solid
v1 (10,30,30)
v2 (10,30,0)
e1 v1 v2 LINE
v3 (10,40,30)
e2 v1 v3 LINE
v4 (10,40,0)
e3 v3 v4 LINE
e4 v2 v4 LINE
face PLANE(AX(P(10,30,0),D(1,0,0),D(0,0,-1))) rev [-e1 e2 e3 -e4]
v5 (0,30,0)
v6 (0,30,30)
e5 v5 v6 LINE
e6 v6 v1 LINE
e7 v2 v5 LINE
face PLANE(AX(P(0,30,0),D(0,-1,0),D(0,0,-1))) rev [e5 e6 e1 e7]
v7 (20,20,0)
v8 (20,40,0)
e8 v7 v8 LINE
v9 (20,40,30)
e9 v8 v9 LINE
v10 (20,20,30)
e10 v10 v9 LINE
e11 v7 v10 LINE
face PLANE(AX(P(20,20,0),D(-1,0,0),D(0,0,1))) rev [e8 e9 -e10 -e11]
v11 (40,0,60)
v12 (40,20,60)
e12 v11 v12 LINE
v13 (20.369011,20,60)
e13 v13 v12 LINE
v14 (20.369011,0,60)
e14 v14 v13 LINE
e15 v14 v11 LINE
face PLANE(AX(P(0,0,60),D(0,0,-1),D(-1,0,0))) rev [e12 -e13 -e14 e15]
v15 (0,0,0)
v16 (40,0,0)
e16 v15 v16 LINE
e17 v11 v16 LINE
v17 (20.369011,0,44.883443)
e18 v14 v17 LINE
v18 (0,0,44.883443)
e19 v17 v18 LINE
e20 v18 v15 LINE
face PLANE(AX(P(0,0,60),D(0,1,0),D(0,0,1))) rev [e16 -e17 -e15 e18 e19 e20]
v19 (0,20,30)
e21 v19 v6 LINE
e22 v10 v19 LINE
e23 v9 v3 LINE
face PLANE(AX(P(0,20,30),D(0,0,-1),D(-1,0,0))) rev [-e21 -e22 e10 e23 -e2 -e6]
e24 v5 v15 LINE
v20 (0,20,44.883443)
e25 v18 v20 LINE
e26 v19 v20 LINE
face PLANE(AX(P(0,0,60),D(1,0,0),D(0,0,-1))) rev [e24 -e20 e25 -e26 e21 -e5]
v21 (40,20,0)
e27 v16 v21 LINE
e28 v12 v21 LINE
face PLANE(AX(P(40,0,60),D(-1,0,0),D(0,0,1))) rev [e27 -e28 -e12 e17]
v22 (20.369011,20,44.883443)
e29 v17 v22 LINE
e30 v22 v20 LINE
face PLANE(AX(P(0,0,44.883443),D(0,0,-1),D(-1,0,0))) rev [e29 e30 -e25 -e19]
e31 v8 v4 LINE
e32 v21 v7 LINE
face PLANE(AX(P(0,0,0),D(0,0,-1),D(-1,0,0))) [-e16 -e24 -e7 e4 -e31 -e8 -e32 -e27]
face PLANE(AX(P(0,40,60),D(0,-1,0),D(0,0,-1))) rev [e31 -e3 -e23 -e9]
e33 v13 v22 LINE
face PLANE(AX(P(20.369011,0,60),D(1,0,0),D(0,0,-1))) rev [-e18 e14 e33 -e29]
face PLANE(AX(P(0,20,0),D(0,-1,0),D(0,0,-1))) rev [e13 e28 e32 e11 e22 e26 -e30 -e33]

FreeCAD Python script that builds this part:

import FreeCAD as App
import Part
import Sketcher
from FreeCAD import Vector

doc = App.newDocument("Part")
body = doc.addObject("PartDesign::Body", "Body")

# Sketch on XY plane
sketch1 = doc.addObject("Sketcher::SketchObject", "Sketch")
body.addObject(sketch1)
sketch1.AttachmentSupport = (doc.XY_Plane, [""])
sketch1.MapMode = "FlatFace"
sketch1.addGeometry([
    Part.LineSegment(Vector(0, 40, 0), Vector(0, 0, 0)),
    Part.LineSegment(Vector(0, 0, 0), Vector(40, 0, 0)),
    Part.LineSegment(Vector(40, 0, 0), Vector(40, 40, 0)),
    Part.LineSegment(Vector(40, 40, 0), Vector(0, 40, 0)),
], False)
sketch1.addConstraint([
    Sketcher.Constraint("Coincident", 0, 2, 1, 1),
    Sketcher.Constraint("Coincident", 1, 2, 2, 1),
    Sketcher.Constraint("Coincident", 2, 2, 3, 1),
    Sketcher.Constraint("Coincident", 3, 2, 0, 1),
    Sketcher.Constraint("Vertical", 0),
    Sketcher.Constraint("Horizontal", 1),
    Sketcher.Constraint("Vertical", 2),
    Sketcher.Constraint("Horizontal", 3),
    Sketcher.Constraint("Coincident", 0, 2, -1, 1),
    Sketcher.Constraint("Equal", 3, 0),
    Sketcher.Constraint("DistanceX", 1, 1, 1, 2, 40.0),
])
pad1 = doc.addObject("PartDesign::Pad", "Pad")
body.addObject(pad1)
pad1.Profile = sketch1
pad1.Length = 60

# Sketch on XZ plane
sketch2 = doc.addObject("Sketcher::SketchObject", "Sketch001")
body.addObject(sketch2)
sketch2.AttachmentSupport = (doc.XZ_Plane, [""])
sketch2.MapMode = "FlatFace"
sketch2.AttachmentOffset = App.Placement(Vector(0, 0, -40), App.Rotation())
sketch2.addGeometry([
    Part.LineSegment(Vector(20, 0, 0), Vector(20, 60, 0)),
    Part.LineSegment(Vector(20, 60, 0), Vector(40, 60, 0)),
    Part.LineSegment(Vector(40, 60, 0), Vector(40, 0, 0)),
    Part.LineSegment(Vector(40, 0, 0), Vector(20, 0, 0)),
], False)
sketch2.addConstraint([
    Sketcher.Constraint("Coincident", 0, 2, 1, 1),
    Sketcher.Constraint("Coincident", 1, 2, 2, 1),
    Sketcher.Constraint("Coincident", 2, 2, 3, 1),
    Sketcher.Constraint("Coincident", 3, 2, 0, 1),
    Sketcher.Constraint("Vertical", 0),
    Sketcher.Constraint("Horizontal", 1),
    Sketcher.Constraint("Vertical", 2),
    Sketcher.Constraint("Horizontal", 3),
    Sketcher.Constraint("PointOnObject", 2, 2, -1),
    Sketcher.Constraint("DistanceX", 1, 1, 1, 2, 20.0),
    Sketcher.Constraint("DistanceY", 0, 1, 0, 2, 60.0),
    Sketcher.Constraint("DistanceX", -1, 1, 0, 2, 20.0),
])
pocket1 = doc.addObject("PartDesign::Pocket", "Pocket")
body.addObject(pocket1)
pocket1.Profile = sketch2
pocket1.Length = 20
pocket1.Reversed = True

# Sketch on XZ plane
sketch3 = doc.addObject("Sketcher::SketchObject", "Sketch002")
body.addObject(sketch3)
sketch3.AttachmentSupport = (doc.XZ_Plane, [""])
sketch3.MapMode = "FlatFace"
sketch3.AttachmentOffset = App.Placement(Vector(0, 0, -40), App.Rotation())
sketch3.addGeometry([
    Part.LineSegment(Vector(0, 0, 0), Vector(0, 30, 0)),
    Part.LineSegment(Vector(0, 30, 0), Vector(10, 30, 0)),
    Part.LineSegment(Vector(10, 30, 0), Vector(10, 0, 0)),
    Part.LineSegment(Vector(10, 0, 0), Vector(0, 0, 0)),
], False)
sketch3.addConstraint([
    Sketcher.Constraint("Coincident", 0, 2, 1, 1),
    Sketcher.Constraint("Coincident", 1, 2, 2, 1),
    Sketcher.Constraint("Coincident", 2, 2, 3, 1),
    Sketcher.Constraint("Coincident", 3, 2, 0, 1),
    Sketcher.Constraint("Vertical", 0),
    Sketcher.Constraint("Horizontal", 1),
    Sketcher.Constraint("Vertical", 2),
    Sketcher.Constraint("Horizontal", 3),
    Sketcher.Constraint("Coincident", 3, 2, -1, 1),
    Sketcher.Constraint("DistanceX", 1, 1, 1, 2, 10.0),
    Sketcher.Constraint("DistanceY", 0, 1, 0, 2, 30.0),
])
pocket2 = doc.addObject("PartDesign::Pocket", "Pocket001")
body.addObject(pocket2)
pocket2.Profile = sketch3
pocket2.Length = 10
pocket2.Reversed = True

# Sketch on XZ plane
sketch4 = doc.addObject("Sketcher::SketchObject", "Sketch003")
body.addObject(sketch4)
sketch4.AttachmentSupport = (doc.XZ_Plane, [""])
sketch4.MapMode = "FlatFace"
sketch4.AttachmentOffset = App.Placement(Vector(0, 0, -40), App.Rotation())
sketch4.addGeometry([
    Part.LineSegment(Vector(0, 30, 0), Vector(0, 60, 0)),
    Part.LineSegment(Vector(0, 60, 0), Vector(20, 60, 0)),
    Part.LineSegment(Vector(20, 60, 0), Vector(20, 30, 0)),
    Part.LineSegment(Vector(20, 30, 0), Vector(0, 30, 0)),
], False)
sketch4.addConstraint([
    Sketcher.Constraint("Coincident", 0, 2, 1, 1),
    Sketcher.Constraint("Coincident", 1, 2, 2, 1),
    Sketcher.Constraint("Coincident", 2, 2, 3, 1),
    Sketcher.Constraint("Coincident", 3, 2, 0, 1),
    Sketcher.Constraint("Vertical", 0),
    Sketcher.Constraint("Horizontal", 1),
    Sketcher.Constraint("Vertical", 2),
    Sketcher.Constraint("Horizontal", 3),
    Sketcher.Constraint("PointOnObject", 0, 2, -2),
    Sketcher.Constraint("DistanceX", 1, 1, 1, 2, 20.0),
    Sketcher.Constraint("DistanceY", 0, 1, 0, 2, 30.0),
    Sketcher.Constraint("DistanceY", -1, 1, 0, 2, 60.0),
])
pocket3 = doc.addObject("PartDesign::Pocket", "Pocket002")
body.addObject(pocket3)
pocket3.Profile = sketch4
pocket3.Length = 20
pocket3.Reversed = True

# Sketch on XZ plane
sketch5 = doc.addObject("Sketcher::SketchObject", "Sketch004")
body.addObject(sketch5)
sketch5.AttachmentSupport = (doc.XZ_Plane, [""])
sketch5.MapMode = "FlatFace"
sketch5.AttachmentOffset = App.Placement(Vector(0, 0, -20), App.Rotation())
sketch5.addGeometry([
    Part.LineSegment(Vector(0, 45, 0), Vector(0, 60, 0)),
    Part.LineSegment(Vector(0, 60, 0), Vector(20, 60, 0)),
    Part.LineSegment(Vector(20, 60, 0), Vector(20, 45, 0)),
    Part.LineSegment(Vector(20, 45, 0), Vector(0, 45, 0)),
], False)
sketch5.addConstraint([
    Sketcher.Constraint("Coincident", 0, 2, 1, 1),
    Sketcher.Constraint("Coincident", 1, 2, 2, 1),
    Sketcher.Constraint("Coincident", 2, 2, 3, 1),
    Sketcher.Constraint("Coincident", 3, 2, 0, 1),
    Sketcher.Constraint("Vertical", 0),
    Sketcher.Constraint("Horizontal", 1),
    Sketcher.Constraint("Vertical", 2),
    Sketcher.Constraint("Horizontal", 3),
    Sketcher.Constraint("PointOnObject", 0, 2, -2),
    Sketcher.Constraint("DistanceY", -1, 1, 0, 2, 60.0),
    Sketcher.Constraint("DistanceX", 1, 1, 1, 2, 20.369011),
    Sketcher.Constraint("DistanceY", 0, 1, 0, 2, 15.116557),
])
pocket4 = doc.addObject("PartDesign::Pocket", "Pocket003")
body.addObject(pocket4)
pocket4.Profile = sketch5
pocket4.Length = 20
pocket4.Reversed = True

doc.recompute()
